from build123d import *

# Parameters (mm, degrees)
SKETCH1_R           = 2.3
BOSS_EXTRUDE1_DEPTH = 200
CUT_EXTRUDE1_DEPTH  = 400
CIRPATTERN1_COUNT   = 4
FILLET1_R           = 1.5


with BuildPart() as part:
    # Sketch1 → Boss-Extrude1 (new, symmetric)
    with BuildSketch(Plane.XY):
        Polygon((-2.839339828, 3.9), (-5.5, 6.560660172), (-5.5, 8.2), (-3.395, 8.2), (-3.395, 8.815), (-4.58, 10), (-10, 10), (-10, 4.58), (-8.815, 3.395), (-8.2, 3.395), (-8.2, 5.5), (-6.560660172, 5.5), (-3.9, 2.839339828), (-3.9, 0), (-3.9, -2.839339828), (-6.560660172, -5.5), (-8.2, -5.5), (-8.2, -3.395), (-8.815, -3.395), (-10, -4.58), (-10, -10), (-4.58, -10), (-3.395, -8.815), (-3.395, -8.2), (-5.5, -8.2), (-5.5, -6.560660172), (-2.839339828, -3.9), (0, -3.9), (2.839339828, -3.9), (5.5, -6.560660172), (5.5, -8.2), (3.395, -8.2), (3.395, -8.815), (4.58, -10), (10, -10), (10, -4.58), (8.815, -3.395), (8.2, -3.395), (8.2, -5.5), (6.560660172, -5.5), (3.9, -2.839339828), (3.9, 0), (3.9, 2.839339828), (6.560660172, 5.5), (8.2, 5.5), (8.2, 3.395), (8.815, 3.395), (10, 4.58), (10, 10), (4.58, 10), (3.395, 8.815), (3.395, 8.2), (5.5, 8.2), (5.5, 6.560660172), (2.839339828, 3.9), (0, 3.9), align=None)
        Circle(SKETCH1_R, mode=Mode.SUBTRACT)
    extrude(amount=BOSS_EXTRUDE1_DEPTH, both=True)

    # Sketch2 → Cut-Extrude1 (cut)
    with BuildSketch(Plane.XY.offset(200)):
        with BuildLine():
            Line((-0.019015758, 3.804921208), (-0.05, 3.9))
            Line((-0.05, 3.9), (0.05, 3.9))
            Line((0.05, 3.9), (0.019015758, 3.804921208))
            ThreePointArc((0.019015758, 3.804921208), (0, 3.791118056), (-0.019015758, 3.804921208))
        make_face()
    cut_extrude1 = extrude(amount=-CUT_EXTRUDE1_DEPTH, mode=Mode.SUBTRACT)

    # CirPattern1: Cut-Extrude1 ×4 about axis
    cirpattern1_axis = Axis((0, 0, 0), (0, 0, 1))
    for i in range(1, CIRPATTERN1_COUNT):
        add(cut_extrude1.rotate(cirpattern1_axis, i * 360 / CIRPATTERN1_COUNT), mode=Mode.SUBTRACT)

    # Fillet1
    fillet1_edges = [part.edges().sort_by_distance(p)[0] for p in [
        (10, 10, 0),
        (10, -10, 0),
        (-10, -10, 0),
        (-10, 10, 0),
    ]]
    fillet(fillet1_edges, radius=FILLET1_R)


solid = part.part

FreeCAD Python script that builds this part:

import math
import FreeCAD as App
import Part
import Sketcher


def edges_at(feature, points):
    """Names of the edges that pass closest to the given points."""
    edges = feature.Shape.Edges
    near = lambda p: min(range(len(edges)), key=lambda i: edges[i].distToShape(Part.Vertex(*p))[0])
    return sorted({f"Edge{near(p) + 1}" for p in points})

doc = App.newDocument("Part")
body = doc.addObject("PartDesign::Body", "Body")

sketch1 = doc.addObject("Sketcher::SketchObject", "Sketch")
body.addObject(sketch1)
sketch1.AttachmentSupport = (doc.XY_Plane, [""])
sketch1.MapMode = "FlatFace"
sketch1.addGeometry(Part.LineSegment(App.Vector(-2.83934, 3.9, 0), App.Vector(-5.5, 6.56066, 0)), False)
sketch1.addGeometry(Part.LineSegment(App.Vector(-5.5, 6.56066, 0), App.Vector(-5.5, 8.2, 0)), False)
sketch1.addGeometry(Part.LineSegment(App.Vector(-5.5, 8.2, 0), App.Vector(-3.395, 8.2, 0)), False)
sketch1.addGeometry(Part.LineSegment(App.Vector(-3.395, 8.2, 0), App.Vector(-3.395, 8.815, 0)), False)
sketch1.addGeometry(Part.LineSegment(App.Vector(-3.395, 8.815, 0), App.Vector(-4.58, 10, 0)), False)
sketch1.addGeometry(Part.LineSegment(App.Vector(-4.58, 10, 0), App.Vector(-10, 10, 0)), False)
sketch1.addGeometry(Part.LineSegment(App.Vector(-10, 10, 0), App.Vector(-10, 4.58, 0)), False)
sketch1.addGeometry(Part.LineSegment(App.Vector(-10, 4.58, 0), App.Vector(-8.815, 3.395, 0)), False)
sketch1.addGeometry(Part.LineSegment(App.Vector(-8.815, 3.395, 0), App.Vector(-8.2, 3.395, 0)), False)
sketch1.addGeometry(Part.LineSegment(App.Vector(-8.2, 3.395, 0), App.Vector(-8.2, 5.5, 0)), False)
sketch1.addGeometry(Part.LineSegment(App.Vector(-8.2, 5.5, 0), App.Vector(-6.56066, 5.5, 0)), False)
sketch1.addGeometry(Part.LineSegment(App.Vector(-6.56066, 5.5, 0), App.Vector(-3.9, 2.83934, 0)), False)
sketch1.addGeometry(Part.LineSegment(App.Vector(-3.9, 2.83934, 0), App.Vector(-3.9, -2.83934, 0)), False)
sketch1.addGeometry(Part.LineSegment(App.Vector(-3.9, -2.83934, 0), App.Vector(-6.56066, -5.5, 0)), False)
sketch1.addGeometry(Part.LineSegment(App.Vector(-6.56066, -5.5, 0), App.Vector(-8.2, -5.5, 0)), False)
sketch1.addGeometry(Part.LineSegment(App.Vector(-8.2, -5.5, 0), App.Vector(-8.2, -3.395, 0)), False)
sketch1.addGeometry(Part.LineSegment(App.Vector(-8.2, -3.395, 0), App.Vector(-8.815, -3.395, 0)), False)
sketch1.addGeometry(Part.LineSegment(App.Vector(-8.815, -3.395, 0), App.Vector(-10, -4.58, 0)), False)
sketch1.addGeometry(Part.LineSegment(App.Vector(-10, -4.58, 0), App.Vector(-10, -10, 0)), False)
sketch1.addGeometry(Part.LineSegment(App.Vector(-10, -10, 0), App.Vector(-4.58, -10, 0)), False)
sketch1.addGeometry(Part.LineSegment(App.Vector(-4.58, -10, 0), App.Vector(-3.395, -8.815, 0)), False)
sketch1.addGeometry(Part.LineSegment(App.Vector(-3.395, -8.815, 0), App.Vector(-3.395, -8.2, 0)), False)
sketch1.addGeometry(Part.LineSegment(App.Vector(-3.395, -8.2, 0), App.Vector(-5.5, -8.2, 0)), False)
sketch1.addGeometry(Part.LineSegment(App.Vector(-5.5, -8.2, 0), App.Vector(-5.5, -6.56066, 0)), False)
sketch1.addGeometry(Part.LineSegment(App.Vector(-5.5, -6.56066, 0), App.Vector(-2.83934, -3.9, 0)), False)
sketch1.addGeometry(Part.LineSegment(App.Vector(-2.83934, -3.9, 0), App.Vector(2.83934, -3.9, 0)), False)
sketch1.addGeometry(Part.LineSegment(App.Vector(2.83934, -3.9, 0), App.Vector(5.5, -6.56066, 0)), False)
sketch1.addGeometry(Part.LineSegment(App.Vector(5.5, -6.56066, 0), App.Vector(5.5, -8.2, 0)), False)
sketch1.addGeometry(Part.LineSegment(App.Vector(5.5, -8.2, 0), App.Vector(3.395, -8.2, 0)), False)
sketch1.addGeometry(Part.LineSegment(App.Vector(3.395, -8.2, 0), App.Vector(3.395, -8.815, 0)), False)
sketch1.addGeometry(Part.LineSegment(App.Vector(3.395, -8.815, 0), App.Vector(4.58, -10, 0)), False)
sketch1.addGeometry(Part.LineSegment(App.Vector(4.58, -10, 0), App.Vector(10, -10, 0)), False)
sketch1.addGeometry(Part.LineSegment(App.Vector(10, -10, 0), App.Vector(10, -4.58, 0)), False)
sketch1.addGeometry(Part.LineSegment(App.Vector(10, -4.58, 0), App.Vector(8.815, -3.395, 0)), False)
sketch1.addGeometry(Part.LineSegment(App.Vector(8.815, -3.395, 0), App.Vector(8.2, -3.395, 0)), False)
sketch1.addGeometry(Part.LineSegment(App.Vector(8.2, -3.395, 0), App.Vector(8.2, -5.5, 0)), False)
sketch1.addGeometry(Part.LineSegment(App.Vector(8.2, -5.5, 0), App.Vector(6.56066, -5.5, 0)), False)
sketch1.addGeometry(Part.LineSegment(App.Vector(6.56066, -5.5, 0), App.Vector(3.9, -2.83934, 0)), False)
sketch1.addGeometry(Part.LineSegment(App.Vector(3.9, -2.83934, 0), App.Vector(3.9, 2.83934, 0)), False)
sketch1.addGeometry(Part.LineSegment(App.Vector(3.9, 2.83934, 0), App.Vector(6.56066, 5.5, 0)), False)
sketch1.addGeometry(Part.LineSegment(App.Vector(6.56066, 5.5, 0), App.Vector(8.2, 5.5, 0)), False)
sketch1.addGeometry(Part.LineSegment(App.Vector(8.2, 5.5, 0), App.Vector(8.2, 3.395, 0)), False)
sketch1.addGeometry(Part.LineSegment(App.Vector(8.2, 3.395, 0), App.Vector(8.815, 3.395, 0)), False)
sketch1.addGeometry(Part.LineSegment(App.Vector(8.815, 3.395, 0), App.Vector(10, 4.58, 0)), False)
sketch1.addGeometry(Part.LineSegment(App.Vector(10, 4.58, 0), App.Vector(10, 10, 0)), False)
sketch1.addGeometry(Part.LineSegment(App.Vector(10, 10, 0), App.Vector(4.58, 10, 0)), False)
sketch1.addGeometry(Part.LineSegment(App.Vector(4.58, 10, 0), App.Vector(3.395, 8.815, 0)), False)
sketch1.addGeometry(Part.LineSegment(App.Vector(3.395, 8.815, 0), App.Vector(3.395, 8.2, 0)), False)
sketch1.addGeometry(Part.LineSegment(App.Vector(3.395, 8.2, 0), App.Vector(5.5, 8.2, 0)), False)
sketch1.addGeometry(Part.LineSegment(App.Vector(5.5, 8.2, 0), App.Vector(5.5, 6.56066, 0)), False)
sketch1.addGeometry(Part.LineSegment(App.Vector(5.5, 6.56066, 0), App.Vector(2.83934, 3.9, 0)), False)
sketch1.addGeometry(Part.LineSegment(App.Vector(2.83934, 3.9, 0), App.Vector(-2.83934, 3.9, 0)), False)
sketch1.addGeometry(Part.Circle(App.Vector(0, 0, 0), App.Vector(0, 0, 1), 2.3), False)
sketch1.addConstraint(Sketcher.Constraint("Coincident", 0, 2, 1, 1))
sketch1.addConstraint(Sketcher.Constraint("Coincident", 1, 2, 2, 1))
sketch1.addConstraint(Sketcher.Constraint("Coincident", 2, 2, 3, 1))
sketch1.addConstraint(Sketcher.Constraint("Coincident", 3, 2, 4, 1))
sketch1.addConstraint(Sketcher.Constraint("Coincident", 4, 2, 5, 1))
sketch1.addConstraint(Sketcher.Constraint("Coincident", 5, 2, 6, 1))
sketch1.addConstraint(Sketcher.Constraint("Coincident", 6, 2, 7, 1))
sketch1.addConstraint(Sketcher.Constraint("Coincident", 7, 2, 8, 1))
sketch1.addConstraint(Sketcher.Constraint("Coincident", 8, 2, 9, 1))
sketch1.addConstraint(Sketcher.Constraint("Coincident", 9, 2, 10, 1))
sketch1.addConstraint(Sketcher.Constraint("Coincident", 10, 2, 11, 1))
sketch1.addConstraint(Sketcher.Constraint("Coincident", 11, 2, 12, 1))
sketch1.addConstraint(Sketcher.Constraint("Coincident", 12, 2, 13, 1))
sketch1.addConstraint(Sketcher.Constraint("Coincident", 13, 2, 14, 1))
sketch1.addConstraint(Sketcher.Constraint("Coincident", 14, 2, 15, 1))
sketch1.addConstraint(Sketcher.Constraint("Coincident", 15, 2, 16, 1))
sketch1.addConstraint(Sketcher.Constraint("Coincident", 16, 2, 17, 1))
sketch1.addConstraint(Sketcher.Constraint("Coincident", 17, 2, 18, 1))
sketch1.addConstraint(Sketcher.Constraint("Coincident", 18, 2, 19, 1))
sketch1.addConstraint(Sketcher.Constraint("Coincident", 19, 2, 20, 1))
sketch1.addConstraint(Sketcher.Constraint("Coincident", 20, 2, 21, 1))
sketch1.addConstraint(Sketcher.Constraint("Coincident", 21, 2, 22, 1))
sketch1.addConstraint(Sketcher.Constraint("Coincident", 22, 2, 23, 1))
sketch1.addConstraint(Sketcher.Constraint("Coincident", 23, 2, 24, 1))
sketch1.addConstraint(Sketcher.Constraint("Coincident", 24, 2, 25, 1))
sketch1.addConstraint(Sketcher.Constraint("Coincident", 25, 2, 26, 1))
sketch1.addConstraint(Sketcher.Constraint("Coincident", 26, 2, 27, 1))
sketch1.addConstraint(Sketcher.Constraint("Coincident", 27, 2, 28, 1))
sketch1.addConstraint(Sketcher.Constraint("Coincident", 28, 2, 29, 1))
sketch1.addConstraint(Sketcher.Constraint("Coincident", 29, 2, 30, 1))
sketch1.addConstraint(Sketcher.Constraint("Coincident", 30, 2, 31, 1))
sketch1.addConstraint(Sketcher.Constraint("Coincident", 31, 2, 32, 1))
sketch1.addConstraint(Sketcher.Constraint("Coincident", 32, 2, 33, 1))
sketch1.addConstraint(Sketcher.Constraint("Coincident", 33, 2, 34, 1))
sketch1.addConstraint(Sketcher.Constraint("Coincident", 34, 2, 35, 1))
sketch1.addConstraint(Sketcher.Constraint("Coincident", 35, 2, 36, 1))
sketch1.addConstraint(Sketcher.Constraint("Coincident", 36, 2, 37, 1))
sketch1.addConstraint(Sketcher.Constraint("Coincident", 37, 2, 38, 1))
sketch1.addConstraint(Sketcher.Constraint("Coincident", 38, 2, 39, 1))
sketch1.addConstraint(Sketcher.Constraint("Coincident", 39, 2, 40, 1))
sketch1.addConstraint(Sketcher.Constraint("Coincident", 40, 2, 41, 1))
sketch1.addConstraint(Sketcher.Constraint("Coincident", 41, 2, 42, 1))
sketch1.addConstraint(Sketcher.Constraint("Coincident", 42, 2, 43, 1))
sketch1.addConstraint(Sketcher.Constraint("Coincident", 43, 2, 44, 1))
sketch1.addConstraint(Sketcher.Constraint("Coincident", 44, 2, 45, 1))
sketch1.addConstraint(Sketcher.Constraint("Coincident", 45, 2, 46, 1))
sketch1.addConstraint(Sketcher.Constraint("Coincident", 46, 2, 47, 1))
sketch1.addConstraint(Sketcher.Constraint("Coincident", 47, 2, 48, 1))
sketch1.addConstraint(Sketcher.Constraint("Coincident", 48, 2, 49, 1))
sketch1.addConstraint(Sketcher.Constraint("Coincident", 49, 2, 50, 1))
sketch1.addConstraint(Sketcher.Constraint("Coincident", 50, 2, 51, 1))
sketch1.addConstraint(Sketcher.Constraint("Coincident", 51, 2, 0, 1))
sketch1.addConstraint(Sketcher.Constraint("Vertical", 1))
sketch1.addConstraint(Sketcher.Constraint("Horizontal", 2))
sketch1.addConstraint(Sketcher.Constraint("Vertical", 3))
sketch1.addConstraint(Sketcher.Constraint("Horizontal", 5))
sketch1.addConstraint(Sketcher.Constraint("Vertical", 6))
sketch1.addConstraint(Sketcher.Constraint("Horizontal", 8))
sketch1.addConstraint(Sketcher.Constraint("Vertical", 9))
sketch1.addConstraint(Sketcher.Constraint("Horizontal", 10))
sketch1.addConstraint(Sketcher.Constraint("Vertical", 12))
sketch1.addConstraint(Sketcher.Constraint("Horizontal", 14))
sketch1.addConstraint(Sketcher.Constraint("Vertical", 15))
sketch1.addConstraint(Sketcher.Constraint("Horizontal", 16))
sketch1.addConstraint(Sketcher.Constraint("Vertical", 18))
sketch1.addConstraint(Sketcher.Constraint("Horizontal", 19))
sketch1.addConstraint(Sketcher.Constraint("Vertical", 21))
sketch1.addConstraint(Sketcher.Constraint("Horizontal", 22))
sketch1.addConstraint(Sketcher.Constraint("Vertical", 23))
sketch1.addConstraint(Sketcher.Constraint("Horizontal", 25))
sketch1.addConstraint(Sketcher.Constraint("Vertical", 27))
sketch1.addConstraint(Sketcher.Constraint("Horizontal", 28))
sketch1.addConstraint(Sketcher.Constraint("Vertical", 29))
sketch1.addConstraint(Sketcher.Constraint("Horizontal", 31))
sketch1.addConstraint(Sketcher.Constraint("Vertical", 32))
sketch1.addConstraint(Sketcher.Constraint("Horizontal", 34))
sketch1.addConstraint(Sketcher.Constraint("Vertical", 35))
sketch1.addConstraint(Sketcher.Constraint("Horizontal", 36))
sketch1.addConstraint(Sketcher.Constraint("Vertical", 38))
sketch1.addConstraint(Sketcher.Constraint("Horizontal", 40))
sketch1.addConstraint(Sketcher.Constraint("Vertical", 41))
sketch1.addConstraint(Sketcher.Constraint("Horizontal", 42))
sketch1.addConstraint(Sketcher.Constraint("Vertical", 44))
sketch1.addConstraint(Sketcher.Constraint("Horizontal", 45))
sketch1.addConstraint(Sketcher.Constraint("Vertical", 47))
sketch1.addConstraint(Sketcher.Constraint("Horizontal", 48))
sketch1.addConstraint(Sketcher.Constraint("Vertical", 49))
sketch1.addConstraint(Sketcher.Constraint("Horizontal", 51))
sketch1.addConstraint(Sketcher.Constraint("Coincident", 52, 3, -1, 1))
sketch1.addConstraint(Sketcher.Constraint("Symmetric", 0, 2, 26, 2, -1, 1))
sketch1.addConstraint(Sketcher.Constraint("Symmetric", 2, 2, 28, 2, -1, 1))
sketch1.addConstraint(Sketcher.Constraint("Symmetric", 4, 2, 30, 2, -1, 1))
sketch1.addConstraint(Sketcher.Constraint("Symmetric", 6, 2, 32, 2, -1, 1))
sketch1.addConstraint(Sketcher.Constraint("Symmetric", 7, 2, 33, 2, -1, 1))
sketch1.addConstraint(Sketcher.Constraint("Symmetric", 9, 2, 35, 2, -1, 1))
sketch1.addConstraint(Sketcher.Constraint("Symmetric", 11, 2, 37, 2, -1, 1))
sketch1.addConstraint(Sketcher.Constraint("Symmetric", 13, 2, 39, 2, -1, 1))
sketch1.addConstraint(Sketcher.Constraint("Symmetric", 15, 2, 41, 2, -1, 1))
sketch1.addConstraint(Sketcher.Constraint("Symmetric", 17, 2, 43, 2, -1, 1))
sketch1.addConstraint(Sketcher.Constraint("Symmetric", 19, 2, 45, 2, -1, 1))
sketch1.addConstraint(Sketcher.Constraint("Symmetric", 20, 2, 46, 2, -1, 1))
sketch1.addConstraint(Sketcher.Constraint("Symmetric", 22, 2, 48, 2, -1, 1))
sketch1.addConstraint(Sketcher.Constraint("Symmetric", 24, 2, 50, 2, -1, 1))
sketch1.addConstraint(Sketcher.Constraint("Symmetric", 23, 2, 26, 2, -2))
sketch1.addConstraint(Sketcher.Constraint("Symmetric", 21, 2, 28, 2, -2))
sketch1.addConstraint(Sketcher.Constraint("Symmetric", 19, 2, 30, 2, -2))
sketch1.addConstraint(Sketcher.Constraint("Symmetric", 17, 2, 32, 2, -2))
sketch1.addConstraint(Sketcher.Constraint("Symmetric", 16, 2, 33, 2, -2))
sketch1.addConstraint(Sketcher.Constraint("Symmetric", 14, 2, 35, 2, -2))
sketch1.addConstraint(Sketcher.Constraint("Parallel", 0, 4))
sketch1.addConstraint(Sketcher.Constraint("Parallel", 4, 7))
sketch1.addConstraint(Sketcher.Constraint("Parallel", 7, 11))
sketch1.addConstraint(Sketcher.Constraint("Perpendicular", 11, 13))
sketch1.addConstraint(Sketcher.Constraint("Parallel", 13, 17))
sketch1.addConstraint(Sketcher.Constraint("Parallel", 17, 20))
sketch1.addConstraint(Sketcher.Constraint("Parallel", 20, 24))
sketch1.addConstraint(Sketcher.Constraint("Perpendicular", 24, 26))
sketch1.addConstraint(Sketcher.Constraint("Parallel", 26, 30))
sketch1.addConstraint(Sketcher.Constraint("Parallel", 33, 37))
sketch1.addConstraint(Sketcher.Constraint("Perpendicular", 37, 39))
sketch1.addConstraint(Sketcher.Constraint("Parallel", 39, 43))
sketch1.addConstraint(Sketcher.Constraint("Parallel", 46, 50))
sketch1.addConstraint(Sketcher.Constraint("Horizontal", 12, 2, 37, 2))
sketch1.addConstraint(Sketcher.Constraint("Equal", 40, 1))
sketch1.addConstraint(Sketcher.Constraint("Equal", 42, 3))
sketch1.addConstraint(Sketcher.Constraint("Equal", 45, 6))
sketch1.addConstraint(Sketcher.Constraint("Equal", 48, 9))
sketch1.addConstraint(Sketcher.Constraint("Equal", 51, 12))
sketch1.addConstraint(Sketcher.Constraint("Equal", 4, 7))
sketch1.addConstraint(Sketcher.Constraint("Equal", 0, 11))
sketch1.addConstraint(Sketcher.Constraint("Diameter", 52, 4.6))
sketch1.addConstraint(Sketcher.Constraint("DistanceY", -1, 1, 4, 2, 10.0))
sketch1.addConstraint(Sketcher.Constraint("DistanceX", 5, 2, 5, 1, 5.42))
sketch1.addConstraint(Sketcher.Constraint("DistanceX", 0, 2, -1, 1, 5.5))
sketch1.addConstraint(Sketcher.Constraint("DistanceY", -1, 1, 1, 2, 8.2))
sketch1.addConstraint(Sketcher.Constraint("DistanceX", 11, 2, -1, 1, 3.9))
sketch1.addConstraint(Sketcher.Constraint("DistanceX", 2, 1, 2, 2, 2.105))
sketch1.addConstraint(Sketcher.Constraint("DistanceX", 10, 1, 10, 2, 1.63934))
pad1 = doc.addObject("PartDesign::Pad", "Pad")
body.addObject(pad1)
pad1.Profile = sketch1
pad1.Length = 400
pad1.Midplane = True

sketch2 = doc.addObject("Sketcher::SketchObject", "Sketch001")
body.addObject(sketch2)
sketch2.AttachmentSupport = (doc.XY_Plane, [""])
sketch2.MapMode = "FlatFace"
sketch2.AttachmentOffset = App.Placement(App.Vector(0, 0, 200), App.Rotation())
sketch2.addGeometry(Part.LineSegment(App.Vector(-0.05, 3.9, 0), App.Vector(-0.019016, 3.804921, 0)), False)
sketch2.addGeometry(Part.ArcOfCircle(Part.Circle(App.Vector(0, 3.811118, 0), App.Vector(0, 0, 1), 0.02), math.radians(-161.950269), math.radians(-18.049731)), False)
sketch2.addGeometry(Part.LineSegment(App.Vector(0.019016, 3.804921, 0), App.Vector(0.05, 3.9, 0)), False)
sketch2.addGeometry(Part.LineSegment(App.Vector(0.05, 3.9, 0), App.Vector(-0.05, 3.9, 0)), False)
sketch2.addConstraint(Sketcher.Constraint("Tangent", 0, 2, 1, 1))
sketch2.addConstraint(Sketcher.Constraint("Tangent", 1, 2, 2, 1))
sketch2.addConstraint(Sketcher.Constraint("Coincident", 2, 2, 3, 1))
sketch2.addConstraint(Sketcher.Constraint("Coincident", 3, 2, 0, 1))
sketch2.addConstraint(Sketcher.Constraint("Horizontal", 3))
sketch2.addConstraint(Sketcher.Constraint("Symmetric", 0, 2, 1, 2, -2))
sketch2.addConstraint(Sketcher.Constraint("Radius", 1, 0.02))
sketch2.addConstraint(Sketcher.Constraint("DistanceX", 3, 2, 3, 1, 0.1))
sketch2.addConstraint(Sketcher.Constraint("Distance", 0, 0.1))
sketch2.addConstraint(Sketcher.Constraint("DistanceY", -1, 1, 2, 2, 3.9))
pocket1 = doc.addObject("PartDesign::Pocket", "Pocket")
body.addObject(pocket1)
pocket1.Profile = sketch2
pocket1.Length = 400
doc.recompute()

polarpattern = doc.addObject("PartDesign::PolarPattern", "PolarPattern")
body.addObject(polarpattern)
polarpattern.Originals = [pocket1]
polarpattern.Axis = (doc.Z_Axis, [""])
polarpattern.Angle = 360
polarpattern.Occurrences = 4
body.Tip = polarpattern
doc.recompute()

fillet = doc.addObject("PartDesign::Fillet", "Fillet")
body.addObject(fillet)
fillet.Base = (polarpattern, edges_at(polarpattern, [
    (10, 10, 0),
    (10, -10, 0),
    (-10, -10, 0),
    (-10, 10, 0),
]))
fillet.Radius = 1.5

doc.recompute()
